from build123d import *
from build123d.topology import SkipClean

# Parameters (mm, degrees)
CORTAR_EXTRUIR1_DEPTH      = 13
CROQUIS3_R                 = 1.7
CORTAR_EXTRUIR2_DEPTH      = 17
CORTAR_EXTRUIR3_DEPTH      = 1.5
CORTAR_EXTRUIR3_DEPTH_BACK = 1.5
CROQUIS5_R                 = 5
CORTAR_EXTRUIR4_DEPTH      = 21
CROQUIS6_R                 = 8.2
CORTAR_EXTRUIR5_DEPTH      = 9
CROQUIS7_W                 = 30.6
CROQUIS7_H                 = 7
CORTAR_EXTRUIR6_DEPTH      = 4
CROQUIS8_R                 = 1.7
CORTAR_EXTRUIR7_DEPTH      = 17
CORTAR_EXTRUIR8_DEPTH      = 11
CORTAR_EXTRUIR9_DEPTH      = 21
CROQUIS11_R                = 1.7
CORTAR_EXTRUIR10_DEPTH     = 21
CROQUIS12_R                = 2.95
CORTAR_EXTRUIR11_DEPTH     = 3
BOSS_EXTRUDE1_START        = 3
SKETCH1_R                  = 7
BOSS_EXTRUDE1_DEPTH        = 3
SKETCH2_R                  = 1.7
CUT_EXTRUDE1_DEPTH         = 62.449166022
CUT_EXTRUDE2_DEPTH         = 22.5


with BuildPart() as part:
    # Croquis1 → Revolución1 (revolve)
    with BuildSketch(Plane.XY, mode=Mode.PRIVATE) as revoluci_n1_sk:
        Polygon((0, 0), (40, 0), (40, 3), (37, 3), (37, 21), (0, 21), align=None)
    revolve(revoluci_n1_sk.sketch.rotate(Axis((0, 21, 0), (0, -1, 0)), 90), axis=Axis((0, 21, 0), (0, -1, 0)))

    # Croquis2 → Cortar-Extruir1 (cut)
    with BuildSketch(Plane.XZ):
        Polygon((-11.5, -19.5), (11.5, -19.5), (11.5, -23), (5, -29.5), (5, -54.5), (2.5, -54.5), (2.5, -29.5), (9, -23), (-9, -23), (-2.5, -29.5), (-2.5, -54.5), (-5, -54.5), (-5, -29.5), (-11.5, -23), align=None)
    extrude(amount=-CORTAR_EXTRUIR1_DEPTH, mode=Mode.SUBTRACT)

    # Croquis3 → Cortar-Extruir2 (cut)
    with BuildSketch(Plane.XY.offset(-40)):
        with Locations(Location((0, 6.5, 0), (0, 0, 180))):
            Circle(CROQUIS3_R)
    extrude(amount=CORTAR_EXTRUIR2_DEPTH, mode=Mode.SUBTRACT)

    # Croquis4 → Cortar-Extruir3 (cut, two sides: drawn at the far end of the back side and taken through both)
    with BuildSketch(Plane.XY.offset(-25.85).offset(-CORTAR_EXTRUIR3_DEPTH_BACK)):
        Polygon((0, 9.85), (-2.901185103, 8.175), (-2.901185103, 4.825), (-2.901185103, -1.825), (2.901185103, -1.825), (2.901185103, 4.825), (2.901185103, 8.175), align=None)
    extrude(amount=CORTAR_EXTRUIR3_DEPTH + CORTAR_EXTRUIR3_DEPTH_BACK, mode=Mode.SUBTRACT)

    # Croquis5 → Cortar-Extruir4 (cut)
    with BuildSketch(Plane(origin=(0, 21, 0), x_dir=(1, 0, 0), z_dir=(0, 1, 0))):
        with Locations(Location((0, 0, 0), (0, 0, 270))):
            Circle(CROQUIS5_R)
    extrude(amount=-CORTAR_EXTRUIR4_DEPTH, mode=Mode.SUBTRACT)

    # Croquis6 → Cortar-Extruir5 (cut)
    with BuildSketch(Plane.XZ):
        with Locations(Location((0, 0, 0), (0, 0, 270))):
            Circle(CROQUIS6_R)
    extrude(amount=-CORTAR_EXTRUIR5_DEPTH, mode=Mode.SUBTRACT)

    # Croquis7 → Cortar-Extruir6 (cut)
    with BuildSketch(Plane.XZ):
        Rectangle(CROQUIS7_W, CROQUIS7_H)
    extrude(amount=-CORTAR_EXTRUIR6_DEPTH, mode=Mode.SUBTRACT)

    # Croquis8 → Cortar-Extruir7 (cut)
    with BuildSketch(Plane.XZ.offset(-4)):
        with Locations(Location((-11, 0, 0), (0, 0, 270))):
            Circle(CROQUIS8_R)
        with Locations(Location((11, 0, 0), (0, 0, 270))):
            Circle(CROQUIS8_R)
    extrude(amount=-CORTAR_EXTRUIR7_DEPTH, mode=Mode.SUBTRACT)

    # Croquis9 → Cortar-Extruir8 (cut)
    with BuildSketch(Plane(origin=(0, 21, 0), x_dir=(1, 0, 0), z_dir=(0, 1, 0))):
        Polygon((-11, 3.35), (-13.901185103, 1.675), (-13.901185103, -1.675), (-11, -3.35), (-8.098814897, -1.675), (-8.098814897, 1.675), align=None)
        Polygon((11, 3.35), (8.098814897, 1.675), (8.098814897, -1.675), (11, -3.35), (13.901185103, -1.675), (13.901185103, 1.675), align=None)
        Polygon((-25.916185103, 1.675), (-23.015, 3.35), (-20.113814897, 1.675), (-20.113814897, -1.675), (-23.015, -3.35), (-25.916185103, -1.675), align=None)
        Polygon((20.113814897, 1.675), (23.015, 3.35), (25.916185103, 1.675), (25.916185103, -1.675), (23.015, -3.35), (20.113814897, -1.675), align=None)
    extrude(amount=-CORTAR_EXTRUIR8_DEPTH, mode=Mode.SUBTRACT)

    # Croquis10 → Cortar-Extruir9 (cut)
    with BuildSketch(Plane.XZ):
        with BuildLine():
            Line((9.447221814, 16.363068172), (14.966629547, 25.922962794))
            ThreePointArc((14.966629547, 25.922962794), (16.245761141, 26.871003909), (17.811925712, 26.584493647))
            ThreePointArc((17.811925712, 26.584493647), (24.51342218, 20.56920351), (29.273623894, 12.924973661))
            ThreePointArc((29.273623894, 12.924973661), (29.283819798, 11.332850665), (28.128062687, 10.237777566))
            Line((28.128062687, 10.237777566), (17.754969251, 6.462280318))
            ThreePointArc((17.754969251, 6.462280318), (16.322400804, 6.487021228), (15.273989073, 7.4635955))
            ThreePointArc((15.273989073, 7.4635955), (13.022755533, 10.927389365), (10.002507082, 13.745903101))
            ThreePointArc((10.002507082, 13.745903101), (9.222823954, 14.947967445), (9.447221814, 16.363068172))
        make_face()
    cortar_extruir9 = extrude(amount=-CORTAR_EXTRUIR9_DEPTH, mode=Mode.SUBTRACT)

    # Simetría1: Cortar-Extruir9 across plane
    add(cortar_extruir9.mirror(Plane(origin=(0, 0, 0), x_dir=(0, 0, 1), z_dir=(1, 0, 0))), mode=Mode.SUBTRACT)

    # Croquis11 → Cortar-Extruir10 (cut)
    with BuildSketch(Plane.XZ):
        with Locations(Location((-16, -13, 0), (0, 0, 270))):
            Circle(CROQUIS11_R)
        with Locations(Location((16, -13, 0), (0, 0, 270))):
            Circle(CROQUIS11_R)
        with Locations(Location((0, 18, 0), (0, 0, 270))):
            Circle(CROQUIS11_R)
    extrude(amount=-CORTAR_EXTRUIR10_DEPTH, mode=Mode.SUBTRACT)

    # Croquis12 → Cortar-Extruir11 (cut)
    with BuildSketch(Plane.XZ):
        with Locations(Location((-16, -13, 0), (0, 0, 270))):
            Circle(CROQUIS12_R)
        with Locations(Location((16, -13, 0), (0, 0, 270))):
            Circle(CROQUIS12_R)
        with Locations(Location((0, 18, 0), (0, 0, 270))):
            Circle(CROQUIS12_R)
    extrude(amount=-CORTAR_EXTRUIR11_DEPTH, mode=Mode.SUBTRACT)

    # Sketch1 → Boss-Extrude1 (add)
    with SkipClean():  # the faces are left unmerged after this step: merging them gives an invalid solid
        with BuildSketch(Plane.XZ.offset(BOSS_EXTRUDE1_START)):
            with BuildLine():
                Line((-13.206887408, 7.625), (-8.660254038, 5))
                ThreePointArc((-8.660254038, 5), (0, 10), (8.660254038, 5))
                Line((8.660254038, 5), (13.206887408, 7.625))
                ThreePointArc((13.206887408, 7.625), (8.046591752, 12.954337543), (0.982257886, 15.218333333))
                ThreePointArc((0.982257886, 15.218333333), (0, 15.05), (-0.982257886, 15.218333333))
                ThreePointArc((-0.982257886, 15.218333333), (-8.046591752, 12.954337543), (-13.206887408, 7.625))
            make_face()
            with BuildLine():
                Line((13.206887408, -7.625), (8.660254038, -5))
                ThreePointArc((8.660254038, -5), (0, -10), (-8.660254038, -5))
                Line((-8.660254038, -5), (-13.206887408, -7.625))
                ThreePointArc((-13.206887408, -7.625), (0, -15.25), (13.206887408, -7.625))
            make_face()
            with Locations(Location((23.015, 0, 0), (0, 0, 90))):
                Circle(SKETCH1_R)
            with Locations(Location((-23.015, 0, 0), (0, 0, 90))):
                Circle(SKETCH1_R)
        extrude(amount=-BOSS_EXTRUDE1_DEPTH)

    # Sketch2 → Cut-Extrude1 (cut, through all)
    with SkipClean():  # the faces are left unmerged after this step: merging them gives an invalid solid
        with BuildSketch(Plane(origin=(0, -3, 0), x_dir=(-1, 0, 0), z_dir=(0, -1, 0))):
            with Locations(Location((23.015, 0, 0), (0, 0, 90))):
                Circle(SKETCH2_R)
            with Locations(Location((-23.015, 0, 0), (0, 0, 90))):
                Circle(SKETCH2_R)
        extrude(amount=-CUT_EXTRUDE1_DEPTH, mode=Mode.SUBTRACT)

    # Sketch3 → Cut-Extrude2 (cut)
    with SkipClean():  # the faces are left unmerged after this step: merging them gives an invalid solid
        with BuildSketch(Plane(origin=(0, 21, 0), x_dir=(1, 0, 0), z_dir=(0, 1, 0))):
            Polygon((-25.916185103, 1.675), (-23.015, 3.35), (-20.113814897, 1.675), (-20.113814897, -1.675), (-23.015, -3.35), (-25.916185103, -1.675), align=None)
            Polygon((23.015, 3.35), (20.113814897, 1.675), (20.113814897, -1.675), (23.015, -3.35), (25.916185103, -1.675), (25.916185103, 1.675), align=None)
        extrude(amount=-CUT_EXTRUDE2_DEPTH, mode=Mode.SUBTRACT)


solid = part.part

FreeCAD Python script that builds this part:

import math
import FreeCAD as App
import Part
import Sketcher
Q = App.Units.Quantity


def add_polygon(sketch, points):
    """Adds a closed chain of lines whose ends are joined by coincident constraints."""
    first, n = sketch.GeometryCount, len(points)
    for a, b in zip(points, points[1:] + points[:1]):
        sketch.addGeometry(Part.LineSegment(App.Vector(*a, 0), App.Vector(*b, 0)), False)
    for i in range(n):
        sketch.addConstraint(Sketcher.Constraint("Coincident", first + i, 2, first + (i + 1) % n, 1))

doc = App.newDocument("Part")
body = doc.addObject("PartDesign::Body", "Body")

# Sketch on XY plane
sketch1 = body.newObject("Sketcher::SketchObject", "Sketch")
sketch1.AttachmentSupport = (doc.getObject("XY_Plane"), [""])
sketch1.MapMode = "FlatFace"
add_polygon(sketch1, [(0, 0), (40, 0), (40, 3), (37, 3), (37, 21), (0, 21)])  # lines 0-5
sketch1.addConstraint([
    Sketcher.Constraint("Horizontal", 0),
    Sketcher.Constraint("Vertical", 1),
    Sketcher.Constraint("Horizontal", 2),
    Sketcher.Constraint("Vertical", 3),
    Sketcher.Constraint("Horizontal", 4),
    Sketcher.Constraint("Vertical", 5),
    Sketcher.Constraint("Coincident", 5, 2, -1, 1),
    Sketcher.Constraint("Equal", 2, 1),
    Sketcher.Constraint("DistanceX", 0, 1, 0, 2, 40.0),
    Sketcher.Constraint("DistanceX", 2, 2, 2, 1, 3.0),
    Sketcher.Constraint("DistanceY", 3, 1, 3, 2, 18.0),
])
revolution = body.newObject("PartDesign::Revolution", "Revolution")
revolution.Profile = sketch1
revolution.ReferenceAxis = (sketch1, ["V_Axis"])
revolution.Angle = 360

# Sketch on XZ plane
sketch2 = body.newObject("Sketcher::SketchObject", "Sketch001")
sketch2.AttachmentSupport = (doc.getObject("XZ_Plane"), [""])
sketch2.MapMode = "FlatFace"
add_polygon(sketch2, [(11.5, -19.5), (-11.5, -19.5), (-11.5, -23), (-5, -29.5), (-5, -54.5), (-2.5, -54.5), (-2.5, -29.5), (-9, -23), (9, -23), (2.5, -29.5), (2.5, -54.5), (5, -54.5), (5, -29.5), (11.5, -23)])  # lines 0-13
sketch2.addConstraint([
    Sketcher.Constraint("Horizontal", 0),
    Sketcher.Constraint("Vertical", 1),
    Sketcher.Constraint("Vertical", 3),
    Sketcher.Constraint("Horizontal", 4),
    Sketcher.Constraint("Vertical", 5),
    Sketcher.Constraint("Horizontal", 7),
    Sketcher.Constraint("Vertical", 9),
    Sketcher.Constraint("Horizontal", 10),
    Sketcher.Constraint("Vertical", 11),
    Sketcher.Constraint("Vertical", 13),
    Sketcher.Constraint("Symmetric", 5, 2, 8, 2, -2),
    Sketcher.Constraint("Symmetric", 3, 2, 10, 2, -2),
    Sketcher.Constraint("Symmetric", 1, 2, 12, 2, -2),
    Sketcher.Constraint("Parallel", 2, 6),
    Sketcher.Constraint("Perpendicular", 6, 8),
    Sketcher.Constraint("Parallel", 8, 12),
    Sketcher.Constraint("Horizontal", 2, 2, 5, 2),
    Sketcher.Constraint("Horizontal", 1, 2, 6, 2),
    Sketcher.Constraint("Horizontal", 8, 2, 11, 2),
    Sketcher.Constraint("DistanceX", 0, 2, 0, 1, 23.0),
    Sketcher.Constraint("DistanceX", 7, 1, 7, 2, 18.0),
    Sketcher.Constraint("DistanceY", 3, 2, 3, 1, 25.0),
    Sketcher.Constraint("DistanceY", 1, 2, 1, 1, 3.5),
    Sketcher.Constraint("DistanceY", 1, 2, -1, 1, 23.0),
    Sketcher.Constraint("DistanceX", 2, 2, -1, 1, 5.0),
])
pocket1 = body.newObject("PartDesign::Pocket", "Pocket")
pocket1.Profile = sketch2
pocket1.Length = 13

# Sketch on XY plane
sketch3 = body.newObject("Sketcher::SketchObject", "Sketch002")
sketch3.AttachmentSupport = (doc.getObject("XY_Plane"), [""])
sketch3.MapMode = "FlatFace"
sketch3.AttachmentOffset = App.Placement(App.Vector(0, 0, -40), App.Rotation())
sketch3.addGeometry(Part.Circle(App.Vector(0, 6.5, 0), App.Vector(0, 0, 1), 1.7), False)
sketch3.addConstraint([
    Sketcher.Constraint("PointOnObject", 0, 3, -2),
    Sketcher.Constraint("Diameter", 0, 3.4),
    Sketcher.Constraint("DistanceY", -1, 1, 0, 3, 6.5),
])
pocket2 = body.newObject("PartDesign::Pocket", "Pocket001")
pocket2.Profile = sketch3
pocket2.Length = 17
pocket2.Reversed = True

# Sketch on XY plane
sketch4 = body.newObject("Sketcher::SketchObject", "Sketch003")
sketch4.AttachmentSupport = (doc.getObject("XY_Plane"), [""])
sketch4.MapMode = "FlatFace"
sketch4.AttachmentOffset = App.Placement(App.Vector(0, 0, -25.85), App.Rotation())
add_polygon(sketch4, [(0, 9.85), (-2.901185, 8.175), (-2.901185, -1.825), (2.901185, -1.825), (2.901185, 8.175)])  # lines 0-4
sketch4.addConstraint([
    Sketcher.Constraint("Vertical", 1),
    Sketcher.Constraint("Horizontal", 2),
    Sketcher.Constraint("Vertical", 3),
    Sketcher.Constraint("Symmetric", 0, 2, 3, 2, -2),
    Sketcher.Constraint("PointOnObject", 4, 2, -2),
    Sketcher.Constraint("DistanceY", 1, 2, 1, 1, 10.0),
    Sketcher.Constraint("Angle", 0, Q("-150 deg")),
    Sketcher.Constraint("Distance", 0, 3.35),
    Sketcher.Constraint("DistanceY", -1, 1, 4, 2, 9.85),
])
pocket3 = body.newObject("PartDesign::Pocket", "Pocket002")
pocket3.Profile = sketch4
pocket3.Type = "TwoLengths"
pocket3.Length = 1.5
pocket3.Length2 = 1.5
pocket3.Reversed = True

# Sketch on XZ plane
sketch5 = body.newObject("Sketcher::SketchObject", "Sketch004")
sketch5.AttachmentSupport = (doc.getObject("XZ_Plane"), [""])
sketch5.MapMode = "FlatFace"
sketch5.AttachmentOffset = App.Placement(App.Vector(0, 0, -21), App.Rotation())
sketch5.addGeometry(Part.Circle(App.Vector(0, 0, 0), App.Vector(0, 0, 1), 5), False)
sketch5.addConstraint([
    Sketcher.Constraint("Coincident", 0, 3, -1, 1),
    Sketcher.Constraint("Diameter", 0, 10.0),
])
pocket4 = body.newObject("PartDesign::Pocket", "Pocket003")
pocket4.Profile = sketch5
pocket4.Length = 21
pocket4.Reversed = True

# Sketch on XZ plane
sketch6 = body.newObject("Sketcher::SketchObject", "Sketch005")
sketch6.AttachmentSupport = (doc.getObject("XZ_Plane"), [""])
sketch6.MapMode = "FlatFace"
sketch6.addGeometry(Part.Circle(App.Vector(0, 0, 0), App.Vector(0, 0, 1), 8.2), False)
sketch6.addConstraint([
    Sketcher.Constraint("Coincident", 0, 3, -1, 1),
    Sketcher.Constraint("Diameter", 0, 16.4),
])
pocket5 = body.newObject("PartDesign::Pocket", "Pocket004")
pocket5.Profile = sketch6
pocket5.Length = 9

# Sketch on XZ plane
sketch7 = body.newObject("Sketcher::SketchObject", "Sketch006")
sketch7.AttachmentSupport = (doc.getObject("XZ_Plane"), [""])
sketch7.MapMode = "FlatFace"
add_polygon(sketch7, [(-15.3, 3.5), (-15.3, -3.5), (15.3, -3.5), (15.3, 3.5)])  # lines 0-3
sketch7.addConstraint([
    Sketcher.Constraint("Vertical", 0),
    Sketcher.Constraint("Horizontal", 1),
    Sketcher.Constraint("Vertical", 2),
    Sketcher.Constraint("Horizontal", 3),
    Sketcher.Constraint("Symmetric", 0, 2, 2, 2, -1, 1),
    Sketcher.Constraint("DistanceY", 0, 2, 0, 1, 7.0),
    Sketcher.Constraint("DistanceX", 1, 1, 1, 2, 30.6),
])
pocket6 = body.newObject("PartDesign::Pocket", "Pocket005")
pocket6.Profile = sketch7
pocket6.Length = 4

# Sketch on XZ plane
sketch8 = body.newObject("Sketcher::SketchObject", "Sketch007")
sketch8.AttachmentSupport = (doc.getObject("XZ_Plane"), [""])
sketch8.MapMode = "FlatFace"
sketch8.AttachmentOffset = App.Placement(App.Vector(0, 0, -4), App.Rotation())
sketch8.addGeometry([
    Part.Circle(App.Vector(-11, 0, 0), App.Vector(0, 0, 1), 1.7),
    Part.Circle(App.Vector(11, 0, 0), App.Vector(0, 0, 1), 1.7),
], False)
sketch8.addConstraint([
    Sketcher.Constraint("Equal", 0, 1),
    Sketcher.Constraint("Symmetric", 0, 3, 1, 3, -1, 1),
    Sketcher.Constraint("PointOnObject", 0, 3, -1),
    Sketcher.Constraint("Diameter", 0, 3.4),
    Sketcher.Constraint("DistanceX", 0, 3, -1, 1, 11.0),
])
pocket7 = body.newObject("PartDesign::Pocket", "Pocket006")
pocket7.Profile = sketch8
pocket7.Length = 17

# Sketch on XZ plane
sketch9 = body.newObject("Sketcher::SketchObject", "Sketch008")
sketch9.AttachmentSupport = (doc.getObject("XZ_Plane"), [""])
sketch9.MapMode = "FlatFace"
sketch9.AttachmentOffset = App.Placement(App.Vector(0, 0, -21), App.Rotation())
add_polygon(sketch9, [(-11, -3.35), (-13.901185, -1.675), (-13.901185, 1.675), (-11, 3.35), (-8.098815, 1.675), (-8.098815, -1.675)])  # lines 0-5
add_polygon(sketch9, [(11, -3.35), (8.098815, -1.675), (8.098815, 1.675), (11, 3.35), (13.901185, 1.675), (13.901185, -1.675)])  # lines 6-11
add_polygon(sketch9, [(-23.015, -3.35), (-25.916185, -1.675), (-25.916185, 1.675), (-23.015, 3.35), (-20.113815, 1.675), (-20.113815, -1.675)])  # lines 12-17
add_polygon(sketch9, [(23.015, -3.35), (20.113815, -1.675), (20.113815, 1.675), (23.015, 3.35), (25.916185, 1.675), (25.916185, -1.675)])  # lines 18-23
sketch9.addConstraint([
    Sketcher.Constraint("Vertical", 1),
    Sketcher.Constraint("Vertical", 4),
    Sketcher.Constraint("Vertical", 7),
    Sketcher.Constraint("Vertical", 10),
    Sketcher.Constraint("Vertical", 13),
    Sketcher.Constraint("Vertical", 16),
    Sketcher.Constraint("Vertical", 19),
    Sketcher.Constraint("Vertical", 22),
    Sketcher.Constraint("Symmetric", 3, 2, 6, 2, -1, 1),
    Sketcher.Constraint("Symmetric", 5, 2, 8, 2, -1, 1),
    Sketcher.Constraint("Symmetric", 0, 2, 9, 2, -1, 1),
    Sketcher.Constraint("Symmetric", 2, 2, 11, 2, -1, 1),
    Sketcher.Constraint("Symmetric", 15, 2, 18, 2, -1, 1),
    Sketcher.Constraint("Symmetric", 17, 2, 20, 2, -1, 1),
    Sketcher.Constraint("Symmetric", 12, 2, 21, 2, -1, 1),
    Sketcher.Constraint("Symmetric", 14, 2, 23, 2, -1, 1),
    Sketcher.Constraint("Symmetric", 2, 2, 8, 2, -2),
    Sketcher.Constraint("Symmetric", 14, 2, 20, 2, -2),
    Sketcher.Constraint("Parallel", 0, 3),
    Sketcher.Constraint("Parallel", 2, 5),
    Sketcher.Constraint("Parallel", 5, 8),
    Sketcher.Constraint("Parallel", 8, 11),
    Sketcher.Constraint("Parallel", 9, 12),
    Sketcher.Constraint("Parallel", 11, 14),
    Sketcher.Constraint("Parallel", 12, 15),
    Sketcher.Constraint("Parallel", 14, 17),
    Sketcher.Constraint("Parallel", 17, 20),
    Sketcher.Constraint("Parallel", 20, 23),
    Sketcher.Constraint("Horizontal", 1, 2, 3, 2),
    Sketcher.Constraint("Horizontal", 0, 2, 4, 2),
    Sketcher.Constraint("Horizontal", 10, 2, 12, 2),
    Sketcher.Constraint("Horizontal", 8, 2, 14, 2),
    Sketcher.Constraint("Horizontal", 13, 2, 15, 2),
    Sketcher.Constraint("Angle", 0, Q("150 deg")),
    Sketcher.Constraint("DistanceX", 2, 2, -1, 1, 11.0),
    Sketcher.Constraint("DistanceY", 1, 1, 1, 2, 3.35),
    Sketcher.Constraint("DistanceY", 5, 2, 2, 2, 6.7),
    Sketcher.Constraint("DistanceX", 14, 2, -1, 1, 23.015),
])
pocket8 = body.newObject("PartDesign::Pocket", "Pocket007")
pocket8.Profile = sketch9
pocket8.Length = 11
pocket8.Reversed = True

# Sketch on XZ plane
sketch10 = body.newObject("Sketcher::SketchObject", "Sketch009")
sketch10.AttachmentSupport = (doc.getObject("XZ_Plane"), [""])
sketch10.MapMode = "FlatFace"
sketch10.addGeometry([
    Part.LineSegment(App.Vector(14.96663, 25.922963, 0), App.Vector(9.447222, 16.363068, 0)),  # 0
    Part.ArcOfCircle(Part.Circle(App.Vector(11.179273, 15.363068, 0), App.Vector(0, 0, 1), 2), math.radians(150), math.radians(233.957672)),  # 1
    Part.ArcOfCircle(Part.Circle(App.Vector(0, 0, 0), App.Vector(0, 0, 1), 17), math.radians(26.042328), math.radians(53.957672)),  # 2
    Part.ArcOfCircle(Part.Circle(App.Vector(17.070929, 8.341666, 0), App.Vector(0, 0, 1), 2), math.radians(-153.957672), math.radians(-70)),  # 3
    Part.LineSegment(App.Vector(17.754969, 6.46228, 0), App.Vector(28.128063, 10.237778, 0)),  # 4
    Part.ArcOfCircle(Part.Circle(App.Vector(27.444022, 12.117163, 0), App.Vector(0, 0, 1), 2), math.radians(-70), math.radians(23.822554)),  # 5
    Part.ArcOfCircle(Part.Circle(App.Vector(0, 0, 0), App.Vector(0, 0, 1), 32), math.radians(23.822554), math.radians(56.177446)),  # 6
    Part.ArcOfCircle(Part.Circle(App.Vector(16.69868, 24.922963, 0), App.Vector(0, 0, 1), 2), math.radians(56.177446), math.radians(150)),  # 7
], False)
sketch10.addConstraint([
    Sketcher.Constraint("Tangent", 0, 2, 1, 1),
    Sketcher.Constraint("Tangent", 1, 2, 2, 2),
    Sketcher.Constraint("Tangent", 2, 1, 3, 1),
    Sketcher.Constraint("Tangent", 3, 2, 4, 1),
    Sketcher.Constraint("Tangent", 4, 2, 5, 1),
    Sketcher.Constraint("Tangent", 5, 2, 6, 1),
    Sketcher.Constraint("Tangent", 6, 2, 7, 1),
    Sketcher.Constraint("Tangent", 7, 2, 0, 1),
    Sketcher.Constraint("Coincident", 2, 3, -1, 1),
    Sketcher.Constraint("Coincident", 6, 3, -1, 1),
    Sketcher.Constraint("Equal", 1, 3),
    Sketcher.Constraint("Equal", 3, 5),
    Sketcher.Constraint("Equal", 5, 7),
    Sketcher.Constraint("Equal", 0, 4),
    Sketcher.Constraint("Radius", 1, 2.0),
    Sketcher.Constraint("Radius", 2, 17.0),
    Sketcher.Constraint("Radius", 6, 32.0),
    Sketcher.Constraint("Angle", 0, Q("-120 deg")),
    Sketcher.Constraint("Angle", 4, Q("20 deg")),
    Sketcher.Constraint("DistanceY", 5, 3, 7, 3, 12.8058),
])
pocket9 = body.newObject("PartDesign::Pocket", "Pocket008")
pocket9.Profile = sketch10
pocket9.Length = 21
doc.recompute()

mirrored = body.newObject("PartDesign::Mirrored", "Mirrored")
mirrored.Originals = [pocket9]
mirrored.MirrorPlane = (doc.getObject("YZ_Plane"), [""])
body.Tip = mirrored

# Sketch on XZ plane
sketch11 = body.newObject("Sketcher::SketchObject", "Sketch010")
sketch11.AttachmentSupport = (doc.getObject("XZ_Plane"), [""])
sketch11.MapMode = "FlatFace"
sketch11.addGeometry([
    Part.Circle(App.Vector(-16, -13, 0), App.Vector(0, 0, 1), 1.7),
    Part.Circle(App.Vector(16, -13, 0), App.Vector(0, 0, 1), 1.7),
    Part.Circle(App.Vector(0, 18, 0), App.Vector(0, 0, 1), 1.7),
], False)
sketch11.addConstraint([
    Sketcher.Constraint("Equal", 0, 1),
    Sketcher.Constraint("Equal", 1, 2),
    Sketcher.Constraint("Symmetric", 0, 3, 1, 3, -2),
    Sketcher.Constraint("PointOnObject", 2, 3, -2),
    Sketcher.Constraint("Diameter", 0, 3.4),
    Sketcher.Constraint("DistanceX", 0, 3, -1, 1, 16.0),
    Sketcher.Constraint("DistanceY", 0, 3, -1, 1, 13.0),
    Sketcher.Constraint("DistanceY", -1, 1, 2, 3, 18.0),
])
pocket10 = body.newObject("PartDesign::Pocket", "Pocket009")
pocket10.Profile = sketch11
pocket10.Length = 21

# Sketch on XZ plane
sketch12 = body.newObject("Sketcher::SketchObject", "Sketch011")
sketch12.AttachmentSupport = (doc.getObject("XZ_Plane"), [""])
sketch12.MapMode = "FlatFace"
sketch12.addGeometry([
    Part.Circle(App.Vector(-16, -13, 0), App.Vector(0, 0, 1), 2.95),
    Part.Circle(App.Vector(16, -13, 0), App.Vector(0, 0, 1), 2.95),
    Part.Circle(App.Vector(0, 18, 0), App.Vector(0, 0, 1), 2.95),
], False)
sketch12.addConstraint([
    Sketcher.Constraint("Equal", 0, 1),
    Sketcher.Constraint("Equal", 1, 2),
    Sketcher.Constraint("Symmetric", 0, 3, 1, 3, -2),
    Sketcher.Constraint("PointOnObject", 2, 3, -2),
    Sketcher.Constraint("Diameter", 0, 5.9),
    Sketcher.Constraint("DistanceX", 0, 3, -1, 1, 16.0),
    Sketcher.Constraint("DistanceY", 0, 3, -1, 1, 13.0),
    Sketcher.Constraint("DistanceY", -1, 1, 2, 3, 18.0),
])
pocket11 = body.newObject("PartDesign::Pocket", "Pocket010")
pocket11.Profile = sketch12
pocket11.Length = 3

# Sketch on XZ plane
sketch13 = body.newObject("Sketcher::SketchObject", "Sketch012")
sketch13.AttachmentSupport = (doc.getObject("XZ_Plane"), [""])
sketch13.MapMode = "FlatFace"
sketch13.AttachmentOffset = App.Placement(App.Vector(0, 0, 3), App.Rotation())
sketch13.addGeometry([
    Part.LineSegment(App.Vector(-13.206887, 7.625, 0), App.Vector(-8.660254, 5, 0)),  # 0
    Part.ArcOfCircle(Part.Circle(App.Vector(0, 0, 0), App.Vector(0, 0, 1), 10), math.radians(30), math.radians(150)),  # 1
    Part.LineSegment(App.Vector(8.660254, 5, 0), App.Vector(13.206887, 7.625, 0)),  # 2
    Part.ArcOfCircle(Part.Circle(App.Vector(0, 0, 0), App.Vector(0, 0, 1), 15.25), math.radians(30), math.radians(86.307002)),  # 3
    Part.ArcOfCircle(Part.Circle(App.Vector(0, 18, 0), App.Vector(0, 0, 1), 2.95), math.radians(-109.449067), math.radians(-70.550933)),  # 4
    Part.ArcOfCircle(Part.Circle(App.Vector(0, 0, 0), App.Vector(0, 0, 1), 15.25), math.radians(93.692998), math.radians(150)),  # 5
    Part.LineSegment(App.Vector(13.206887, -7.625, 0), App.Vector(8.660254, -5, 0)),  # 6
    Part.ArcOfCircle(Part.Circle(App.Vector(0, 0, 0), App.Vector(0, 0, 1), 10), math.radians(-150), math.radians(-30)),  # 7
    Part.LineSegment(App.Vector(-8.660254, -5, 0), App.Vector(-13.206887, -7.625, 0)),  # 8
    Part.ArcOfCircle(Part.Circle(App.Vector(0, 0, 0), App.Vector(0, 0, 1), 15.25), math.radians(-150), math.radians(-30)),  # 9
    Part.Circle(App.Vector(23.015, 0, 0), App.Vector(0, 0, 1), 7),  # 10
    Part.Circle(App.Vector(-23.015, 0, 0), App.Vector(0, 0, 1), 7),  # 11
], False)
sketch13.addConstraint([
    Sketcher.Constraint("Coincident", 0, 2, 1, 2),
    Sketcher.Constraint("Coincident", 1, 1, 2, 1),
    Sketcher.Constraint("Coincident", 2, 2, 3, 1),
    Sketcher.Constraint("Coincident", 3, 2, 4, 2),
    Sketcher.Constraint("Coincident", 4, 1, 5, 1),
    Sketcher.Constraint("Coincident", 5, 2, 0, 1),
    Sketcher.Constraint("Coincident", 6, 2, 7, 2),
    Sketcher.Constraint("Coincident", 7, 1, 8, 1),
    Sketcher.Constraint("Coincident", 8, 2, 9, 1),
    Sketcher.Constraint("Coincident", 9, 2, 6, 1),
    Sketcher.Constraint("Coincident", 1, 3, -1, 1),
    Sketcher.Constraint("Coincident", 3, 3, -1, 1),
    Sketcher.Constraint("Coincident", 5, 3, -1, 1),
    Sketcher.Constraint("Coincident", 7, 3, -1, 1),
    Sketcher.Constraint("Coincident", 9, 3, -1, 1),
    Sketcher.Constraint("Equal", 3, 5),
    Sketcher.Constraint("Equal", 1, 7),
    Sketcher.Constraint("Equal", 5, 9),
    Sketcher.Constraint("Equal", 10, 11),
    Sketcher.Constraint("Symmetric", 10, 3, 11, 3, -1, 1),
    Sketcher.Constraint("PointOnObject", 4, 3, -2),
    Sketcher.Constraint("PointOnObject", 10, 3, -1),
    Sketcher.Constraint("Parallel", 0, 6),
    Sketcher.Constraint("Parallel", 2, 8),
    Sketcher.Constraint("Horizontal", 0, 2, 1, 1),
    Sketcher.Constraint("Horizontal", 2, 2, 5, 2),
    Sketcher.Constraint("Horizontal", 6, 2, 7, 1),
    Sketcher.Constraint("Vertical", 1, 1, 6, 2),
    Sketcher.Constraint("Diameter", 10, 14.0),
    Sketcher.Constraint("Radius", 1, 10.0),
    Sketcher.Constraint("Angle", 0, Q("-30 deg")),
    Sketcher.Constraint("Radius", 3, 15.25),
    Sketcher.Constraint("Radius", 4, 2.95),
    Sketcher.Constraint("DistanceY", -1, 1, 4, 3, 18.0),
    Sketcher.Constraint("DistanceY", -1, 1, 0, 2, 5.0),
    Sketcher.Constraint("DistanceX", -1, 1, 10, 3, 23.015),
])
pad1 = body.newObject("PartDesign::Pad", "Pad")
pad1.Profile = sketch13
pad1.Length = 3
pad1.Reversed = True

# Sketch on XZ plane
sketch14 = body.newObject("Sketcher::SketchObject", "Sketch013")
sketch14.AttachmentSupport = (doc.getObject("XZ_Plane"), [""])
sketch14.MapMode = "FlatFace"
sketch14.AttachmentOffset = App.Placement(App.Vector(0, 0, 3), App.Rotation())
sketch14.addGeometry([
    Part.Circle(App.Vector(-23.015, 0, 0), App.Vector(0, 0, 1), 1.7),
    Part.Circle(App.Vector(23.015, 0, 0), App.Vector(0, 0, 1), 1.7),
], False)
sketch14.addConstraint([
    Sketcher.Constraint("Equal", 0, 1),
    Sketcher.Constraint("Symmetric", 0, 3, 1, 3, -1, 1),
    Sketcher.Constraint("PointOnObject", 0, 3, -1),
    Sketcher.Constraint("Diameter", 0, 3.4),
    Sketcher.Constraint("DistanceX", 0, 3, 1, 3, 46.03),
])
pocket12 = body.newObject("PartDesign::Pocket", "Pocket011")
pocket12.Profile = sketch14
pocket12.Type = "ThroughAll"

# Sketch on XZ plane
sketch15 = body.newObject("Sketcher::SketchObject", "Sketch014")
sketch15.AttachmentSupport = (doc.getObject("XZ_Plane"), [""])
sketch15.MapMode = "FlatFace"
sketch15.AttachmentOffset = App.Placement(App.Vector(0, 0, -21), App.Rotation())
add_polygon(sketch15, [(-23.015, -3.35), (-25.916185, -1.675), (-25.916185, 1.675), (-23.015, 3.35), (-20.113815, 1.675), (-20.113815, -1.675)])  # lines 0-5
add_polygon(sketch15, [(23.015, -3.35), (20.113815, -1.675), (20.113815, 1.675), (23.015, 3.35), (25.916185, 1.675), (25.916185, -1.675)])  # lines 6-11
sketch15.addConstraint([
    Sketcher.Constraint("Vertical", 1),
    Sketcher.Constraint("Vertical", 4),
    Sketcher.Constraint("Vertical", 7),
    Sketcher.Constraint("Vertical", 10),
    Sketcher.Constraint("Symmetric", 3, 2, 6, 2, -1, 1),
    Sketcher.Constraint("Symmetric", 5, 2, 8, 2, -1, 1),
    Sketcher.Constraint("Symmetric", 0, 2, 9, 2, -1, 1),
    Sketcher.Constraint("Symmetric", 2, 2, 11, 2, -1, 1),
    Sketcher.Constraint("Symmetric", 2, 2, 8, 2, -2),
    Sketcher.Constraint("Parallel", 0, 3),
    Sketcher.Constraint("Parallel", 2, 5),
    Sketcher.Constraint("Parallel", 5, 8),
    Sketcher.Constraint("Parallel", 8, 11),
    Sketcher.Constraint("Horizontal", 1, 2, 3, 2),
    Sketcher.Constraint("Horizontal", 0, 2, 4, 2),
    Sketcher.Constraint("Angle", 0, Q("150 deg")),
    Sketcher.Constraint("DistanceY", 1, 1, 1, 2, 3.35),
    Sketcher.Constraint("DistanceY", 5, 2, 2, 2, 6.7),
    Sketcher.Constraint("DistanceX", 0, 2, 6, 2, 46.03),
])
pocket13 = body.newObject("PartDesign::Pocket", "Pocket012")
pocket13.Profile = sketch15
pocket13.Length = 22.5
pocket13.Reversed = True

doc.recompute()
